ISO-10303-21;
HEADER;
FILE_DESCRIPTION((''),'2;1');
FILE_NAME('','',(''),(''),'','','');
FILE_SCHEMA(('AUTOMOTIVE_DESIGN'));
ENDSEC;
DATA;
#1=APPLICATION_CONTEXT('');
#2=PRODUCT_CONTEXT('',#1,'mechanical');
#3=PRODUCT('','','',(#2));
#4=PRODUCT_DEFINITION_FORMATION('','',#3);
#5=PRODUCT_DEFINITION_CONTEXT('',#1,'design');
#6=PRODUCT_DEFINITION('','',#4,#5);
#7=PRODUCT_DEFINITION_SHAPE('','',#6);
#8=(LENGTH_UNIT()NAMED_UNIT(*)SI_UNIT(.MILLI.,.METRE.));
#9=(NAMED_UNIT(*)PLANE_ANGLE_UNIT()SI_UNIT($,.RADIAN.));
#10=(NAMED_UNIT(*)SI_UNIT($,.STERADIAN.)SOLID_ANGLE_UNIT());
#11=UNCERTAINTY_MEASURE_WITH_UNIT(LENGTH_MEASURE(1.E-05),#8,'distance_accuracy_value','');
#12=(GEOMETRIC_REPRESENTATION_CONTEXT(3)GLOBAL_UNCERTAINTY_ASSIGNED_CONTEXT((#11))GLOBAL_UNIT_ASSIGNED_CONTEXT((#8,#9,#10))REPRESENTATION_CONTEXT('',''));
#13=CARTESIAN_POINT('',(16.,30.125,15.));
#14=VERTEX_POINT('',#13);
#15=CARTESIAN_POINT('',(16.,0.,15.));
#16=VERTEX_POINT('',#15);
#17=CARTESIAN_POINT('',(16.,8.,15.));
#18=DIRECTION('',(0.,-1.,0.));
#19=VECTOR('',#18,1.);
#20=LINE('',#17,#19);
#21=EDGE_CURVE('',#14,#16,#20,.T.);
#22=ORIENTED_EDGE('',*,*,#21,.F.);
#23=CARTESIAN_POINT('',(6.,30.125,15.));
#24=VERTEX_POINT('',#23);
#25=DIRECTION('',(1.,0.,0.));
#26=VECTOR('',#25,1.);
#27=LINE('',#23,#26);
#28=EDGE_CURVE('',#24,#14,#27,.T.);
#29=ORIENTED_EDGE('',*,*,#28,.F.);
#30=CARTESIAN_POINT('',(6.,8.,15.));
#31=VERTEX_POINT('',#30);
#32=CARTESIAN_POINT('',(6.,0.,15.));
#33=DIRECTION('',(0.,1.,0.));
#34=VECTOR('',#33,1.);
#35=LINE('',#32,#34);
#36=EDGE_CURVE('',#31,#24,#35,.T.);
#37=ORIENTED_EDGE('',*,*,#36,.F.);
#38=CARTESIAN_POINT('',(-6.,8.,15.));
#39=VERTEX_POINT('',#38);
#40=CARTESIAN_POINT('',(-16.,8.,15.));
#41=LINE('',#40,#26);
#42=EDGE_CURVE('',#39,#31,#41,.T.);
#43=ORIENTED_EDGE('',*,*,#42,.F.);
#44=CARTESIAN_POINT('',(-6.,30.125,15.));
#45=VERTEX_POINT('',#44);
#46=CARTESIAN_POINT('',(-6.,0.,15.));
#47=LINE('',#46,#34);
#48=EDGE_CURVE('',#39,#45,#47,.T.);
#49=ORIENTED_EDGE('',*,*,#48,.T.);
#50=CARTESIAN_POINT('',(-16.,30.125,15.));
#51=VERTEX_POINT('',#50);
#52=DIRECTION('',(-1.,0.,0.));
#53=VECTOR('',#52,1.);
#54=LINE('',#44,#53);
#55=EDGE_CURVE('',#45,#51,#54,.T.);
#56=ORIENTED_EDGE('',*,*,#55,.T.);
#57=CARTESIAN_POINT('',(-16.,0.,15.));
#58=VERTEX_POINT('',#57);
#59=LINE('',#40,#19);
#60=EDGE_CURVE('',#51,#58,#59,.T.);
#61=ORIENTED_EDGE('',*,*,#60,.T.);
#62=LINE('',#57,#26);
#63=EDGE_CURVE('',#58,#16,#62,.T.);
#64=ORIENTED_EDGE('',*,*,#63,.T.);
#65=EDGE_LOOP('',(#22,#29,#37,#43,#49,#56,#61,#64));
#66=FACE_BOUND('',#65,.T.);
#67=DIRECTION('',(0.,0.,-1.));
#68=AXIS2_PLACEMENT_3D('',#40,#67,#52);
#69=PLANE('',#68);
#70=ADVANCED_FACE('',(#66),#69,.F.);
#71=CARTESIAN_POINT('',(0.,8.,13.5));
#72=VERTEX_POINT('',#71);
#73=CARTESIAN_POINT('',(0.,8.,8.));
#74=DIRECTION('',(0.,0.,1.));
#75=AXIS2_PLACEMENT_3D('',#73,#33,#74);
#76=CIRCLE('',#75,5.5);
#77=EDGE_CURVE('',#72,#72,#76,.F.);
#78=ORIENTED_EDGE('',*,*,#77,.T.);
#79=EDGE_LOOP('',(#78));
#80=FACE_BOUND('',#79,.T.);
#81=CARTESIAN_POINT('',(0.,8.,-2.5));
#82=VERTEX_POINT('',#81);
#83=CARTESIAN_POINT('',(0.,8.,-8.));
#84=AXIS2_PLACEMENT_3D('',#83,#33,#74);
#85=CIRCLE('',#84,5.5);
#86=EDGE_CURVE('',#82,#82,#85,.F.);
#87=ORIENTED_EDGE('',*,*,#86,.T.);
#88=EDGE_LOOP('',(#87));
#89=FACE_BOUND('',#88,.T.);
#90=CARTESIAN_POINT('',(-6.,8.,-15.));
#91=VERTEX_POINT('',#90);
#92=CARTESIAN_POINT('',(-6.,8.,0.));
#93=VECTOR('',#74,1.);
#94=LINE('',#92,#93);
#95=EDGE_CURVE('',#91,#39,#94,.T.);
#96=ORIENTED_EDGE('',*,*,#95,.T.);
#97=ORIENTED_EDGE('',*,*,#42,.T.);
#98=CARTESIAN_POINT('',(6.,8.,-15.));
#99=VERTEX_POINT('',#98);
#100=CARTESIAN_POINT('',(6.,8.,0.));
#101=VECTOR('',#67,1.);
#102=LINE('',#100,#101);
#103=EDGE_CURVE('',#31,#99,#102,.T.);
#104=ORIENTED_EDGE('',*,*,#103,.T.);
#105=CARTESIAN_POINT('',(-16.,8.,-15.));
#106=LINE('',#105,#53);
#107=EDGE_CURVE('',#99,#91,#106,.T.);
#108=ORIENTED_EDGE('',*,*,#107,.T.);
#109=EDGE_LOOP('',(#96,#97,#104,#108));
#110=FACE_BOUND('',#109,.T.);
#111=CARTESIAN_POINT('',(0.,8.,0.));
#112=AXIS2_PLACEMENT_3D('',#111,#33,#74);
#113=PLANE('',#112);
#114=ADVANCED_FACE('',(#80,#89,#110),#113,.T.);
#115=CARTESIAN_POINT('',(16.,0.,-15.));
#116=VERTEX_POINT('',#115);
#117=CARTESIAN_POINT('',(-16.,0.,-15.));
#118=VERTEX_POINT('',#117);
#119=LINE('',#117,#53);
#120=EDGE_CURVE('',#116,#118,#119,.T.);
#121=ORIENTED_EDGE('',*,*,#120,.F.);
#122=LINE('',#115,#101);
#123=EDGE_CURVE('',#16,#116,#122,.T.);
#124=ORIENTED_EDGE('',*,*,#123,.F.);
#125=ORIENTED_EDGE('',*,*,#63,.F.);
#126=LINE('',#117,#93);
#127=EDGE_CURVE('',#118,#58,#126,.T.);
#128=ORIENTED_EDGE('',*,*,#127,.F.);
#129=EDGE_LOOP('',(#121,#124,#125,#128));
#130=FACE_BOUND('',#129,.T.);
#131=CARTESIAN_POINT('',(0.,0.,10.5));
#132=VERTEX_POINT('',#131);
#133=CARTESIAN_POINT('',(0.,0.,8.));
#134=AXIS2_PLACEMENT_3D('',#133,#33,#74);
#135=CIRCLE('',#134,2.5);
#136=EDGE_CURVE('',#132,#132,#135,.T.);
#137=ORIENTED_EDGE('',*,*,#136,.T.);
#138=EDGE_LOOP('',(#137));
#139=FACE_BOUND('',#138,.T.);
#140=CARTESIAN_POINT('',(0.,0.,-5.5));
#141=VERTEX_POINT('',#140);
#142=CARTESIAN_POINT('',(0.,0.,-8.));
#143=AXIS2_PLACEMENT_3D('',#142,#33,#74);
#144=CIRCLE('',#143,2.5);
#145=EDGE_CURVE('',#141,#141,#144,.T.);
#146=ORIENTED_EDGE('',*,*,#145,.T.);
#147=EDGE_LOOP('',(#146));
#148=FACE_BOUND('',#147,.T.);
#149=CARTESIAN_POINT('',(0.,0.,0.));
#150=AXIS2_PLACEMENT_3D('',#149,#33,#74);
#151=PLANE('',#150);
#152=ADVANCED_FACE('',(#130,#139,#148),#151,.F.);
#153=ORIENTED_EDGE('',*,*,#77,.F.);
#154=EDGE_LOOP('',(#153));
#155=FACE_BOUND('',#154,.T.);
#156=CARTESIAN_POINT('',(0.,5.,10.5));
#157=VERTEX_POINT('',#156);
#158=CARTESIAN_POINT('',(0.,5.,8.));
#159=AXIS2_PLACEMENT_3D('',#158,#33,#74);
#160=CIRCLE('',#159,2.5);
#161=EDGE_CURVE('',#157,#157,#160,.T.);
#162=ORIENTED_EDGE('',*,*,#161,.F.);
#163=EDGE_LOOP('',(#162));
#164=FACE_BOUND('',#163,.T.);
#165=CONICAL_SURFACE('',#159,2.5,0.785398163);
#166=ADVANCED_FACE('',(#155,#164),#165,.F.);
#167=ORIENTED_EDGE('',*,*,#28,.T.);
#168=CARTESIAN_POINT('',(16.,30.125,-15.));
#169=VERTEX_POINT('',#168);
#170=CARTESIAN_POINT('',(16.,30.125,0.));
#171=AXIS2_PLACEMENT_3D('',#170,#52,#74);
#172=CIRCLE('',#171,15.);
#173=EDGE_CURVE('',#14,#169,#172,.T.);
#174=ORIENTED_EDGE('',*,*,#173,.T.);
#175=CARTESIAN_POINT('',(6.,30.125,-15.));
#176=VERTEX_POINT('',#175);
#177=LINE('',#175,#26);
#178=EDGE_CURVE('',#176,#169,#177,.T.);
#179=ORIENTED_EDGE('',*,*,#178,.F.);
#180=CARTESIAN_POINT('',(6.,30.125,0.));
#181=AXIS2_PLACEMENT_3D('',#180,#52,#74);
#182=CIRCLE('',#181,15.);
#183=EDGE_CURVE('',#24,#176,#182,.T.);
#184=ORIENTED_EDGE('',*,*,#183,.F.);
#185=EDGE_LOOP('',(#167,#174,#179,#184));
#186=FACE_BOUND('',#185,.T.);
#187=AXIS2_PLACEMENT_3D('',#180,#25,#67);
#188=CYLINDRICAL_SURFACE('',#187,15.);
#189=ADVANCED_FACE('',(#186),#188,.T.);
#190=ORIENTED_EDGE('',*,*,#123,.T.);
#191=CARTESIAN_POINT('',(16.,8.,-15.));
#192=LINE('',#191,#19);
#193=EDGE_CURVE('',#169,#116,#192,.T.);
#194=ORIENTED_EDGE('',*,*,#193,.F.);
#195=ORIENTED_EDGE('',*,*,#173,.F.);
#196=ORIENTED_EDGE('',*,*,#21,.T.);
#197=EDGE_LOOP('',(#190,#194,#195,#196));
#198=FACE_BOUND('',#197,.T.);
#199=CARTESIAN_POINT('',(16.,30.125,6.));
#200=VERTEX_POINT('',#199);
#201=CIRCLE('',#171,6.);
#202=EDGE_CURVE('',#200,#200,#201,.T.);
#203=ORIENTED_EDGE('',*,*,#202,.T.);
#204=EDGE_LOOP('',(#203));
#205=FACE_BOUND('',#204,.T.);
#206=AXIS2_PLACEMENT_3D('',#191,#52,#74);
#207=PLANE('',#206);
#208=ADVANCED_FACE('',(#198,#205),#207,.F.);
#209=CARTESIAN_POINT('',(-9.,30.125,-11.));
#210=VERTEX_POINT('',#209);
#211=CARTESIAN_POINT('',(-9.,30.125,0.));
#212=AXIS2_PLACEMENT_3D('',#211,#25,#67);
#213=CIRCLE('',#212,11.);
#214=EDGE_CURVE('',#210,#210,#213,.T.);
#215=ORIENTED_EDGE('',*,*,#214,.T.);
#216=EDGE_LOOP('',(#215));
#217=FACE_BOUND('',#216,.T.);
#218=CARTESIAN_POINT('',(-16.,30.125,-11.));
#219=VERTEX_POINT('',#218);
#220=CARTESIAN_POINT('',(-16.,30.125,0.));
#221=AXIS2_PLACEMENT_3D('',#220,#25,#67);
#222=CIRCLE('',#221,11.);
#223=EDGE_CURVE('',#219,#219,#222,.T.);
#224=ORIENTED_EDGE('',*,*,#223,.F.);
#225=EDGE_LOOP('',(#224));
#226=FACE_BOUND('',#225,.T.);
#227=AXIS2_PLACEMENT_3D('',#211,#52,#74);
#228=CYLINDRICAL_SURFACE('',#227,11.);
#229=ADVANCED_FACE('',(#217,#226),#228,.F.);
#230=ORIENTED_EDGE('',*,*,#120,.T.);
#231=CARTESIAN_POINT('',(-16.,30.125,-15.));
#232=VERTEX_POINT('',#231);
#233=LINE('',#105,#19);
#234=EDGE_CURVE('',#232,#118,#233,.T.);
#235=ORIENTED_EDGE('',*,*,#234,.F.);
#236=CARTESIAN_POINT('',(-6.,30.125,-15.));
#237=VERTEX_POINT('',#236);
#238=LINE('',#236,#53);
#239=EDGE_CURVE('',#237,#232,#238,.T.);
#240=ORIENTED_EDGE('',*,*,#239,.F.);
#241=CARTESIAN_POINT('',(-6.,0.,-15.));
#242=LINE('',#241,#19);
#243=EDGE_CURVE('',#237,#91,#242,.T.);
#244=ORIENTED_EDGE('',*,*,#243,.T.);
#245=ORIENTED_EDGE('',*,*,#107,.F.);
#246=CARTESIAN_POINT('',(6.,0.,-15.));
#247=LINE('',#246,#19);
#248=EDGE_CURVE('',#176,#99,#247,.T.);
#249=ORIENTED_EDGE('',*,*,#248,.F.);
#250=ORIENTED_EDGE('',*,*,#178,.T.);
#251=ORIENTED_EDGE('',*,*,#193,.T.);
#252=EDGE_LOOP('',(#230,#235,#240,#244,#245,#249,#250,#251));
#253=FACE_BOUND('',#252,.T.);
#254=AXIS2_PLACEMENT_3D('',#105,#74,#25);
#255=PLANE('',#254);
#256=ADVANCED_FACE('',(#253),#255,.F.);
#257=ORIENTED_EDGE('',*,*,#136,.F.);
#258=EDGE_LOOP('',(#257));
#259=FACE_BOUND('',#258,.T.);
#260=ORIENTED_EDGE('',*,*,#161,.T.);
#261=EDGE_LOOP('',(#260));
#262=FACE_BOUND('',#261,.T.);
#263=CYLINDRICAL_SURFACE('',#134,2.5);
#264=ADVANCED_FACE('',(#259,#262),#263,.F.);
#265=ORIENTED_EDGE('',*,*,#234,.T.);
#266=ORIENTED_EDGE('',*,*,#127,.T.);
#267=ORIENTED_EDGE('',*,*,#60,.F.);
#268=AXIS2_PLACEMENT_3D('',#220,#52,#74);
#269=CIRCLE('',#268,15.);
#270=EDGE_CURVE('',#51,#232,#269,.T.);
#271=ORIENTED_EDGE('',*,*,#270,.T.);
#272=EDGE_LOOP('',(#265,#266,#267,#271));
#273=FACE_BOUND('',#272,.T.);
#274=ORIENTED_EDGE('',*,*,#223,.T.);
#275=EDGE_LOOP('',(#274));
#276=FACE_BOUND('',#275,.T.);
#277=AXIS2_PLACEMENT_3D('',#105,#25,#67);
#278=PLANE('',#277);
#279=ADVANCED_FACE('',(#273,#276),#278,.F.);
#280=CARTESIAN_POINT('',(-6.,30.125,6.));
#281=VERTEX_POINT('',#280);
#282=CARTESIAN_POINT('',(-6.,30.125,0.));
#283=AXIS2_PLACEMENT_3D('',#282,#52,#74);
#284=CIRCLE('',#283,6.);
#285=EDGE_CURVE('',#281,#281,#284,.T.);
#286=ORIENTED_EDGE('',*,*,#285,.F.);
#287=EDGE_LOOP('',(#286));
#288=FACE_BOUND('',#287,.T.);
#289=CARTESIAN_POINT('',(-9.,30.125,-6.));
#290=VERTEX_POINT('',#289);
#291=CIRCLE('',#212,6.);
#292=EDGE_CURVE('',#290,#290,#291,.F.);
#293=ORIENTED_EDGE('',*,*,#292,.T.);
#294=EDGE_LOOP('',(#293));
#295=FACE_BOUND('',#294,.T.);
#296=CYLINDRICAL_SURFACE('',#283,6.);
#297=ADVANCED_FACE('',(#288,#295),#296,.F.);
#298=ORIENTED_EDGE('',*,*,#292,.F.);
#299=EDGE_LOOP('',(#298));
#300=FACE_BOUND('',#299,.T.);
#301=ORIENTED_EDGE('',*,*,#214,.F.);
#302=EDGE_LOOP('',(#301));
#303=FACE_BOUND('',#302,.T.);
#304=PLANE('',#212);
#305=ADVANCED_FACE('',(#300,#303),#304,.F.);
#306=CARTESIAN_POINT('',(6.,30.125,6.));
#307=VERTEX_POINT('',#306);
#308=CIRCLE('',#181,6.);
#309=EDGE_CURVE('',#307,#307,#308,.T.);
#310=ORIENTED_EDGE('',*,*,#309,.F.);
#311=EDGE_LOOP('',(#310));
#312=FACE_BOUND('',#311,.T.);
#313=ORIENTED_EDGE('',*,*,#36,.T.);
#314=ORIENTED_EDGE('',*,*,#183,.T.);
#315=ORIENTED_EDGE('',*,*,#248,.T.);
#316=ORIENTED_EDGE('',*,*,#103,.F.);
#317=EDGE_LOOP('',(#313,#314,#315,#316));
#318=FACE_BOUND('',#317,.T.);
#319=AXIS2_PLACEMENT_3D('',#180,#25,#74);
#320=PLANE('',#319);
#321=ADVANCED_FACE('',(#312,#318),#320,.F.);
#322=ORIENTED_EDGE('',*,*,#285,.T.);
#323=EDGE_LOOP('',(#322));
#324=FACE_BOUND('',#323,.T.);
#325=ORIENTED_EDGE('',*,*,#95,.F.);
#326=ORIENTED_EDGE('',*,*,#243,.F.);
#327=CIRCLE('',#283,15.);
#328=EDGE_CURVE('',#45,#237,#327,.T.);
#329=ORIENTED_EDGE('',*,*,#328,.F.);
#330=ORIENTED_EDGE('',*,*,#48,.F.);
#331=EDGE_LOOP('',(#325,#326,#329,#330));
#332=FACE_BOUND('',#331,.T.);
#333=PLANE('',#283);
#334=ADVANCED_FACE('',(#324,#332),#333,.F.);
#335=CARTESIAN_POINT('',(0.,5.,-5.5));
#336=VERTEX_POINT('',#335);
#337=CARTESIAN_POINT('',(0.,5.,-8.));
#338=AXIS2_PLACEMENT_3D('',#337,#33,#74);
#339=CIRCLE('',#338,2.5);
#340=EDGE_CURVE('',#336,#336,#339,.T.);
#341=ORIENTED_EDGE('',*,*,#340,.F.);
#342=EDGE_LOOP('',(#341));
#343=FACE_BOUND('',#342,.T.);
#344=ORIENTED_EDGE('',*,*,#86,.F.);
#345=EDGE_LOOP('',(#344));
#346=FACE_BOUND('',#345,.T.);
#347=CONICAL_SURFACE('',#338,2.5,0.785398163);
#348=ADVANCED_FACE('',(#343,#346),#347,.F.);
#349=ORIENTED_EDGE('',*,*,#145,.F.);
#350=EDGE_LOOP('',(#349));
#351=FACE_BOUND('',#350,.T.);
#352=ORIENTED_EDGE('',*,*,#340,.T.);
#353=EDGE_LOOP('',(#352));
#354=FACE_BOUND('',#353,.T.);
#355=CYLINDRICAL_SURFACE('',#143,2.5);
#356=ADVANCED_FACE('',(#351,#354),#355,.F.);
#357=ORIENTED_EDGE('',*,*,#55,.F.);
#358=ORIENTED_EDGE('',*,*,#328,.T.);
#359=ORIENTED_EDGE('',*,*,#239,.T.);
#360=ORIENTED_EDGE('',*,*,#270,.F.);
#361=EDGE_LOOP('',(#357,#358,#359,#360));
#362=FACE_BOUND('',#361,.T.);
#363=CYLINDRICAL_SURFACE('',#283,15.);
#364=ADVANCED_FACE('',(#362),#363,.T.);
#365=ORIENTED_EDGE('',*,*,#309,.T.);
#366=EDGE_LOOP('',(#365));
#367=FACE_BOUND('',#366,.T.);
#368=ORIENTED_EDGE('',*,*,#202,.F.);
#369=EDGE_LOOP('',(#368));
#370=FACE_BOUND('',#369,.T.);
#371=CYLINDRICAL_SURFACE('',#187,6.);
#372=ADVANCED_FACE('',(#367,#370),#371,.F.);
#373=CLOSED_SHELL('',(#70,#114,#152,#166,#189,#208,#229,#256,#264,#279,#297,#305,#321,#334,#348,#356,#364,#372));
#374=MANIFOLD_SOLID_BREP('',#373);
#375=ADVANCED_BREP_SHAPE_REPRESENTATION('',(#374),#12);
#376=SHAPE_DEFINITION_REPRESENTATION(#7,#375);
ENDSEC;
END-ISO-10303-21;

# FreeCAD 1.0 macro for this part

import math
import FreeCAD as App
import Part
import Sketcher

V = App.Vector


def edges_at(feature, points):
    """Names of the edges that pass closest to the given points."""
    edges = feature.Shape.Edges
    near = lambda p: min(range(len(edges)), key=lambda i: edges[i].distToShape(Part.Vertex(*p))[0])
    return sorted({f"Edge{near(p) + 1}" for p in points})


def add_polygon(sketch, points):
    """Adds a closed chain of lines whose ends are joined by coincident constraints."""
    first, n = sketch.GeometryCount, len(points)
    for a, b in zip(points, points[1:] + points[:1]):
        sketch.addGeometry(Part.LineSegment(App.Vector(*a, 0), App.Vector(*b, 0)), False)
    for i in range(n):
        sketch.addConstraint(Sketcher.Constraint("Coincident", first + i, 2, first + (i + 1) % n, 1))

doc = App.newDocument("Part")
body = doc.addObject("PartDesign::Body", "Body")

# Sketch on XZ plane
sketch1 = doc.addObject("Sketcher::SketchObject", "Sketch")
body.addObject(sketch1)
sketch1.AttachmentSupport = (doc.XZ_Plane, [""])
sketch1.MapMode = "FlatFace"
add_polygon(sketch1, [(-16, -15), (-16, 15), (16, 15), (16, -15)])  # lines 0-3
sketch1.addConstraint([
    Sketcher.Constraint("Vertical", 0),
    Sketcher.Constraint("Horizontal", 1),
    Sketcher.Constraint("Vertical", 2),
    Sketcher.Constraint("Horizontal", 3),
    Sketcher.Constraint("Symmetric", 0, 2, 2, 2, -1, 1),
    Sketcher.Constraint("DistanceX", 1, 1, 1, 2, 32.0),
    Sketcher.Constraint("DistanceY", 0, 1, 0, 2, 30.0),
])
pad1 = doc.addObject("PartDesign::Pad", "Pad")
body.addObject(pad1)
pad1.Profile = sketch1
pad1.Length = 8
pad1.Reversed = True

# Sketch on YZ plane
sketch2 = doc.addObject("Sketcher::SketchObject", "Sketch001")
body.addObject(sketch2)
sketch2.AttachmentSupport = (doc.YZ_Plane, [""])
sketch2.MapMode = "FlatFace"
sketch2.AttachmentOffset = App.Placement(V(0, 0, -16), App.Rotation())
sketch2.addGeometry([
    Part.LineSegment(V(0, -15, 0), V(0, 15, 0)),  # 0
    Part.LineSegment(V(0, 15, 0), V(30, 15, 0)),  # 1
    Part.ArcOfCircle(Part.Circle(V(30, 0, 0), V(0, 0, 1), 15), math.radians(-90), math.radians(90)),  # 2
    Part.LineSegment(V(30, -15, 0), V(0, -15, 0)),  # 3
    Part.Circle(V(30, 0, 0), V(0, 0, 1), 6),  # 4
], False)
sketch2.addConstraint([
    Sketcher.Constraint("Coincident", 0, 2, 1, 1),
    Sketcher.Constraint("Tangent", 1, 2, 2, 2),
    Sketcher.Constraint("Tangent", 2, 1, 3, 1),
    Sketcher.Constraint("Coincident", 3, 2, 0, 1),
    Sketcher.Constraint("Vertical", 0),
    Sketcher.Constraint("Horizontal", 1),
    Sketcher.Constraint("Horizontal", 3),
    Sketcher.Constraint("Coincident", 4, 3, 2, 3),
    Sketcher.Constraint("Symmetric", 0, 2, 3, 2, -1, 1),
    Sketcher.Constraint("Diameter", 4, 12.0),
    Sketcher.Constraint("Radius", 2, 15.0),
    Sketcher.Constraint("DistanceX", 1, 1, 1, 2, 30.125),
])
pad2 = doc.addObject("PartDesign::Pad", "Pad001")
body.addObject(pad2)
pad2.Profile = sketch2
pad2.Length = 10

# Sketch on YZ plane
sketch3 = doc.addObject("Sketcher::SketchObject", "Sketch002")
body.addObject(sketch3)
sketch3.AttachmentSupport = (doc.YZ_Plane, [""])
sketch3.MapMode = "FlatFace"
sketch3.AttachmentOffset = App.Placement(V(0, 0, -16), App.Rotation())
sketch3.addGeometry(Part.Circle(V(30, 0, 0), V(0, 0, 1), 11), False)
sketch3.addConstraint([
    Sketcher.Constraint("PointOnObject", 0, 3, -1),
    Sketcher.Constraint("Diameter", 0, 22.0),
    Sketcher.Constraint("DistanceX", -1, 1, 0, 3, 30.125),
])
pocket1 = doc.addObject("PartDesign::Pocket", "Pocket")
body.addObject(pocket1)
pocket1.Profile = sketch3
pocket1.Length = 7
pocket1.Reversed = True
doc.recompute()

mirrored = doc.addObject("PartDesign::Mirrored", "Mirrored")
body.addObject(mirrored)
mirrored.Originals = [pad2]
mirrored.MirrorPlane = (doc.YZ_Plane, [""])
body.Tip = mirrored

# Sketch on XZ plane
sketch4 = doc.addObject("Sketcher::SketchObject", "Sketch003")
body.addObject(sketch4)
sketch4.AttachmentSupport = (doc.XZ_Plane, [""])
sketch4.MapMode = "FlatFace"
sketch4.AttachmentOffset = App.Placement(V(0, 0, -8), App.Rotation())
sketch4.addGeometry([
    Part.Circle(V(0, -8, 0), V(0, 0, 1), 2.5),
    Part.Circle(V(0, 8, 0), V(0, 0, 1), 2.5),
], False)
sketch4.addConstraint([
    Sketcher.Constraint("Equal", 0, 1),
    Sketcher.Constraint("Symmetric", 0, 3, 1, 3, -1, 1),
    Sketcher.Constraint("PointOnObject", 0, 3, -2),
    Sketcher.Constraint("Diameter", 0, 5.0),
    Sketcher.Constraint("DistanceY", 0, 3, -1, 1, 8.0),
])
pocket2 = doc.addObject("PartDesign::Pocket", "Pocket001")
body.addObject(pocket2)
pocket2.Profile = sketch4
pocket2.Type = "ThroughAll"
pocket2.Reversed = True
doc.recompute()

chamfer = doc.addObject("PartDesign::Chamfer", "Chamfer")
body.addObject(chamfer)
chamfer.Base = (pocket2, edges_at(pocket2, [(0, 8, -10.5), (0, 8, 5.5)]))
chamfer.Size = 3

doc.recompute()
